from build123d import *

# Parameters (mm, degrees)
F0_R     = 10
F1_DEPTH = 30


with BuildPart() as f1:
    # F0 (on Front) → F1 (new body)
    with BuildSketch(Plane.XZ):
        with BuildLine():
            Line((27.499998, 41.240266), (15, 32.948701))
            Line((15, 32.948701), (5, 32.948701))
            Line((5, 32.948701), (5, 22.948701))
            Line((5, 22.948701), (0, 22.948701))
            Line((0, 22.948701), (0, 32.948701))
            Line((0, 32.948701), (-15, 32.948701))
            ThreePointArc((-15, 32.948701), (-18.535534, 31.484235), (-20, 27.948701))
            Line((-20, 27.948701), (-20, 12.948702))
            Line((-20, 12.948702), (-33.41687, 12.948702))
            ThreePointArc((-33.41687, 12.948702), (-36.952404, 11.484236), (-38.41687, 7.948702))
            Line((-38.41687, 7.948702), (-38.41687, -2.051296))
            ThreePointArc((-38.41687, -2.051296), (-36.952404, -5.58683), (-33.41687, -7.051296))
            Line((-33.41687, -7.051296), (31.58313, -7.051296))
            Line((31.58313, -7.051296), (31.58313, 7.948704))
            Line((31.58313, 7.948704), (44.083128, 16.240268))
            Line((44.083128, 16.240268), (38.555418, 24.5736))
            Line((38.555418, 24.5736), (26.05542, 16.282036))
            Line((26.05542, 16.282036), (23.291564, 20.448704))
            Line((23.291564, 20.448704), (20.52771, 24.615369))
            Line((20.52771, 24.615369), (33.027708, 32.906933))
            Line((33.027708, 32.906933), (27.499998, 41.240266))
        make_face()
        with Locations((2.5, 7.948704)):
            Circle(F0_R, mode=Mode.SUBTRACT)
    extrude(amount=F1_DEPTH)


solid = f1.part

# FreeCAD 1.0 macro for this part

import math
import FreeCAD as App
import Part
import Sketcher

V = App.Vector
Q = App.Units.Quantity

doc = App.newDocument("Part")
params = doc.addObject("Spreadsheet::Sheet", "Params")
for row, (alias, value) in enumerate([
    ("sketch1_diameter", "20 mm"),
    ("sketch1_radius", "5 mm"),
    ("sketch1_width", "10 mm"),
    ("sketch1_width2", "5 mm"),
    ("sketch1_width3", "65 mm"),
    ("pad1_length", "30 mm"),
], start=1):
    params.set(f"A{row}", alias)
    params.set(f"B{row}", "=" + value)
    params.setAlias(f"B{row}", alias)

body = doc.addObject("PartDesign::Body", "Body")

sketch1 = doc.addObject("Sketcher::SketchObject", "Sketch")
body.addObject(sketch1)
sketch1.AttachmentSupport = (doc.XZ_Plane, [""])
sketch1.MapMode = "FlatFace"
sketch1.addGeometry(Part.LineSegment(V(27.5, 41.2, 0), V(15, 32.9, 0)), False)
sketch1.addGeometry(Part.LineSegment(V(15, 32.9, 0), V(5, 32.9, 0)), False)
sketch1.addGeometry(Part.LineSegment(V(5, 32.9, 0), V(5, 22.9, 0)), False)
sketch1.addGeometry(Part.LineSegment(V(5, 22.9, 0), V(0, 22.9, 0)), False)
sketch1.addGeometry(Part.LineSegment(V(0, 22.9, 0), V(0, 32.9, 0)), False)
sketch1.addGeometry(Part.LineSegment(V(0, 32.9, 0), V(-15, 32.9, 0)), False)
sketch1.addGeometry(Part.ArcOfCircle(Part.Circle(V(-15, 27.9, 0), V(0, 0, 1), 5), math.radians(90), math.radians(180)), False)
sketch1.addGeometry(Part.LineSegment(V(-20, 27.9, 0), V(-20, 12.9, 0)), False)
sketch1.addGeometry(Part.LineSegment(V(-20, 12.9, 0), V(-33.4, 12.9, 0)), False)
sketch1.addGeometry(Part.ArcOfCircle(Part.Circle(V(-33.4, 7.9, 0), V(0, 0, 1), 5), math.radians(90), math.radians(180)), False)
sketch1.addGeometry(Part.LineSegment(V(-38.4, 7.9, 0), V(-38.4, -2.1, 0)), False)
sketch1.addGeometry(Part.ArcOfCircle(Part.Circle(V(-33.4, -2.1, 0), V(0, 0, 1), 5), math.radians(180), math.radians(270)), False)
sketch1.addGeometry(Part.LineSegment(V(-33.4, -7.1, 0), V(31.6, -7.1, 0)), False)
sketch1.addGeometry(Part.LineSegment(V(31.6, -7.1, 0), V(31.6, 7.9, 0)), False)
sketch1.addGeometry(Part.LineSegment(V(31.6, 7.9, 0), V(44.1, 16.2, 0)), False)
sketch1.addGeometry(Part.LineSegment(V(44.1, 16.2, 0), V(38.6, 24.6, 0)), False)
sketch1.addGeometry(Part.LineSegment(V(38.6, 24.6, 0), V(26.1, 16.3, 0)), False)
sketch1.addGeometry(Part.LineSegment(V(26.1, 16.3, 0), V(23.3, 20.4, 0)), False)
sketch1.addGeometry(Part.LineSegment(V(23.3, 20.4, 0), V(20.5, 24.6, 0)), False)
sketch1.addGeometry(Part.LineSegment(V(20.5, 24.6, 0), V(33, 32.9, 0)), False)
sketch1.addGeometry(Part.LineSegment(V(33, 32.9, 0), V(27.5, 41.2, 0)), False)
sketch1.addGeometry(Part.Circle(V(2.5, 7.9, 0), V(0, 0, 1), 10), False)
sketch1.addConstraint(Sketcher.Constraint("Coincident", 0, 2, 1, 1))
sketch1.addConstraint(Sketcher.Constraint("Coincident", 1, 2, 2, 1))
sketch1.addConstraint(Sketcher.Constraint("Coincident", 2, 2, 3, 1))
sketch1.addConstraint(Sketcher.Constraint("Coincident", 3, 2, 4, 1))
sketch1.addConstraint(Sketcher.Constraint("Coincident", 4, 2, 5, 1))
sketch1.addConstraint(Sketcher.Constraint("Tangent", 5, 2, 6, 1))
sketch1.addConstraint(Sketcher.Constraint("Tangent", 6, 2, 7, 1))
sketch1.addConstraint(Sketcher.Constraint("Coincident", 7, 2, 8, 1))
sketch1.addConstraint(Sketcher.Constraint("Tangent", 8, 2, 9, 1))
sketch1.addConstraint(Sketcher.Constraint("Tangent", 9, 2, 10, 1))
sketch1.addConstraint(Sketcher.Constraint("Tangent", 10, 2, 11, 1))
sketch1.addConstraint(Sketcher.Constraint("Tangent", 11, 2, 12, 1))
sketch1.addConstraint(Sketcher.Constraint("Coincident", 12, 2, 13, 1))
sketch1.addConstraint(Sketcher.Constraint("Coincident", 13, 2, 14, 1))
sketch1.addConstraint(Sketcher.Constraint("Coincident", 14, 2, 15, 1))
sketch1.addConstraint(Sketcher.Constraint("Coincident", 15, 2, 16, 1))
sketch1.addConstraint(Sketcher.Constraint("Coincident", 16, 2, 17, 1))
sketch1.addConstraint(Sketcher.Constraint("Coincident", 17, 2, 18, 1))
sketch1.addConstraint(Sketcher.Constraint("Coincident", 18, 2, 19, 1))
sketch1.addConstraint(Sketcher.Constraint("Coincident", 19, 2, 20, 1))
sketch1.addConstraint(Sketcher.Constraint("Coincident", 20, 2, 0, 1))
sketch1.addConstraint(Sketcher.Constraint("Horizontal", 1))
sketch1.addConstraint(Sketcher.Constraint("Vertical", 2))
sketch1.addConstraint(Sketcher.Constraint("Horizontal", 3))
sketch1.addConstraint(Sketcher.Constraint("Vertical", 4))
sketch1.addConstraint(Sketcher.Constraint("Horizontal", 5))
sketch1.addConstraint(Sketcher.Constraint("Vertical", 7))
sketch1.addConstraint(Sketcher.Constraint("Horizontal", 8))
sketch1.addConstraint(Sketcher.Constraint("Vertical", 10))
sketch1.addConstraint(Sketcher.Constraint("Horizontal", 12))
sketch1.addConstraint(Sketcher.Constraint("Vertical", 13))
sketch1.addConstraint(Sketcher.Constraint("Equal", 6, 9))
sketch1.addConstraint(Sketcher.Constraint("Equal", 9, 11))
sketch1.addConstraint(Sketcher.Constraint("Symmetric", 0, 2, 5, 2, -2))
sketch1.addConstraint(Sketcher.Constraint("PointOnObject", 3, 2, -2))
sketch1.addConstraint(Sketcher.Constraint("Parallel", 0, 14))
sketch1.addConstraint(Sketcher.Constraint("Perpendicular", 14, 15))
sketch1.addConstraint(Sketcher.Constraint("Perpendicular", 15, 16))
sketch1.addConstraint(Sketcher.Constraint("Perpendicular", 16, 17))
sketch1.addConstraint(Sketcher.Constraint("Parallel", 17, 18))
sketch1.addConstraint(Sketcher.Constraint("Perpendicular", 18, 19))
sketch1.addConstraint(Sketcher.Constraint("Perpendicular", 19, 20))
sketch1.addConstraint(Sketcher.Constraint("Horizontal", 9, 3, 21, 3))
sketch1.addConstraint(Sketcher.Constraint("Horizontal", 21, 3, 13, 2))
sketch1.addConstraint(Sketcher.Constraint("Equal", 1, 2))
sketch1.addConstraint(Sketcher.Constraint("Equal", 5, 7))
sketch1.addConstraint(Sketcher.Constraint("Equal", 7, 13))
sketch1.addConstraint(Sketcher.Constraint("Equal", 0, 14))
sketch1.addConstraint(Sketcher.Constraint("Equal", 14, 16))
sketch1.addConstraint(Sketcher.Constraint("Equal", 16, 19))
sketch1.addConstraint(Sketcher.Constraint("Equal", 15, 20))
sketch1.addConstraint(Sketcher.Constraint("Diameter", 21, Q("20 mm")))
sketch1.addConstraint(Sketcher.Constraint("Radius", 6, Q("5 mm")))
sketch1.addConstraint(Sketcher.Constraint("DistanceX", 1, 2, 1, 1, Q("10 mm")))
sketch1.addConstraint(Sketcher.Constraint("DistanceX", 3, 2, 3, 1, Q("5 mm")))
sketch1.addConstraint(Sketcher.Constraint("DistanceX", 12, 1, 12, 2, Q("65 mm")))
sketch1.addConstraint(Sketcher.Constraint("Distance", 0, Q("15 mm")))
sketch1.addConstraint(Sketcher.Constraint("Distance", 15, Q("10 mm")))
sketch1.addConstraint(Sketcher.Constraint("Distance", 18, Q("4.999999 mm")))
sketch1.addConstraint(Sketcher.Constraint("DistanceX", -1, 1, 21, 3, Q("2.5 mm")))
sketch1.addConstraint(Sketcher.Constraint("DistanceX", -1, 1, 20, 2, Q("27.499998 mm")))
sketch1.addConstraint(Sketcher.Constraint("DistanceY", -1, 1, 6, 3, Q("27.948701 mm")))
sketch1.setExpression("Constraints[51]", "Params.sketch1_diameter")
sketch1.setExpression("Constraints[52]", "Params.sketch1_radius")
sketch1.setExpression("Constraints[53]", "Params.sketch1_width")
sketch1.setExpression("Constraints[54]", "Params.sketch1_width2")
sketch1.setExpression("Constraints[55]", "Params.sketch1_width3")
pad1 = doc.addObject("PartDesign::Pad", "Pad")
body.addObject(pad1)
pad1.Profile = sketch1
pad1.setExpression("Length", "Params.pad1_length")

doc.recompute()
